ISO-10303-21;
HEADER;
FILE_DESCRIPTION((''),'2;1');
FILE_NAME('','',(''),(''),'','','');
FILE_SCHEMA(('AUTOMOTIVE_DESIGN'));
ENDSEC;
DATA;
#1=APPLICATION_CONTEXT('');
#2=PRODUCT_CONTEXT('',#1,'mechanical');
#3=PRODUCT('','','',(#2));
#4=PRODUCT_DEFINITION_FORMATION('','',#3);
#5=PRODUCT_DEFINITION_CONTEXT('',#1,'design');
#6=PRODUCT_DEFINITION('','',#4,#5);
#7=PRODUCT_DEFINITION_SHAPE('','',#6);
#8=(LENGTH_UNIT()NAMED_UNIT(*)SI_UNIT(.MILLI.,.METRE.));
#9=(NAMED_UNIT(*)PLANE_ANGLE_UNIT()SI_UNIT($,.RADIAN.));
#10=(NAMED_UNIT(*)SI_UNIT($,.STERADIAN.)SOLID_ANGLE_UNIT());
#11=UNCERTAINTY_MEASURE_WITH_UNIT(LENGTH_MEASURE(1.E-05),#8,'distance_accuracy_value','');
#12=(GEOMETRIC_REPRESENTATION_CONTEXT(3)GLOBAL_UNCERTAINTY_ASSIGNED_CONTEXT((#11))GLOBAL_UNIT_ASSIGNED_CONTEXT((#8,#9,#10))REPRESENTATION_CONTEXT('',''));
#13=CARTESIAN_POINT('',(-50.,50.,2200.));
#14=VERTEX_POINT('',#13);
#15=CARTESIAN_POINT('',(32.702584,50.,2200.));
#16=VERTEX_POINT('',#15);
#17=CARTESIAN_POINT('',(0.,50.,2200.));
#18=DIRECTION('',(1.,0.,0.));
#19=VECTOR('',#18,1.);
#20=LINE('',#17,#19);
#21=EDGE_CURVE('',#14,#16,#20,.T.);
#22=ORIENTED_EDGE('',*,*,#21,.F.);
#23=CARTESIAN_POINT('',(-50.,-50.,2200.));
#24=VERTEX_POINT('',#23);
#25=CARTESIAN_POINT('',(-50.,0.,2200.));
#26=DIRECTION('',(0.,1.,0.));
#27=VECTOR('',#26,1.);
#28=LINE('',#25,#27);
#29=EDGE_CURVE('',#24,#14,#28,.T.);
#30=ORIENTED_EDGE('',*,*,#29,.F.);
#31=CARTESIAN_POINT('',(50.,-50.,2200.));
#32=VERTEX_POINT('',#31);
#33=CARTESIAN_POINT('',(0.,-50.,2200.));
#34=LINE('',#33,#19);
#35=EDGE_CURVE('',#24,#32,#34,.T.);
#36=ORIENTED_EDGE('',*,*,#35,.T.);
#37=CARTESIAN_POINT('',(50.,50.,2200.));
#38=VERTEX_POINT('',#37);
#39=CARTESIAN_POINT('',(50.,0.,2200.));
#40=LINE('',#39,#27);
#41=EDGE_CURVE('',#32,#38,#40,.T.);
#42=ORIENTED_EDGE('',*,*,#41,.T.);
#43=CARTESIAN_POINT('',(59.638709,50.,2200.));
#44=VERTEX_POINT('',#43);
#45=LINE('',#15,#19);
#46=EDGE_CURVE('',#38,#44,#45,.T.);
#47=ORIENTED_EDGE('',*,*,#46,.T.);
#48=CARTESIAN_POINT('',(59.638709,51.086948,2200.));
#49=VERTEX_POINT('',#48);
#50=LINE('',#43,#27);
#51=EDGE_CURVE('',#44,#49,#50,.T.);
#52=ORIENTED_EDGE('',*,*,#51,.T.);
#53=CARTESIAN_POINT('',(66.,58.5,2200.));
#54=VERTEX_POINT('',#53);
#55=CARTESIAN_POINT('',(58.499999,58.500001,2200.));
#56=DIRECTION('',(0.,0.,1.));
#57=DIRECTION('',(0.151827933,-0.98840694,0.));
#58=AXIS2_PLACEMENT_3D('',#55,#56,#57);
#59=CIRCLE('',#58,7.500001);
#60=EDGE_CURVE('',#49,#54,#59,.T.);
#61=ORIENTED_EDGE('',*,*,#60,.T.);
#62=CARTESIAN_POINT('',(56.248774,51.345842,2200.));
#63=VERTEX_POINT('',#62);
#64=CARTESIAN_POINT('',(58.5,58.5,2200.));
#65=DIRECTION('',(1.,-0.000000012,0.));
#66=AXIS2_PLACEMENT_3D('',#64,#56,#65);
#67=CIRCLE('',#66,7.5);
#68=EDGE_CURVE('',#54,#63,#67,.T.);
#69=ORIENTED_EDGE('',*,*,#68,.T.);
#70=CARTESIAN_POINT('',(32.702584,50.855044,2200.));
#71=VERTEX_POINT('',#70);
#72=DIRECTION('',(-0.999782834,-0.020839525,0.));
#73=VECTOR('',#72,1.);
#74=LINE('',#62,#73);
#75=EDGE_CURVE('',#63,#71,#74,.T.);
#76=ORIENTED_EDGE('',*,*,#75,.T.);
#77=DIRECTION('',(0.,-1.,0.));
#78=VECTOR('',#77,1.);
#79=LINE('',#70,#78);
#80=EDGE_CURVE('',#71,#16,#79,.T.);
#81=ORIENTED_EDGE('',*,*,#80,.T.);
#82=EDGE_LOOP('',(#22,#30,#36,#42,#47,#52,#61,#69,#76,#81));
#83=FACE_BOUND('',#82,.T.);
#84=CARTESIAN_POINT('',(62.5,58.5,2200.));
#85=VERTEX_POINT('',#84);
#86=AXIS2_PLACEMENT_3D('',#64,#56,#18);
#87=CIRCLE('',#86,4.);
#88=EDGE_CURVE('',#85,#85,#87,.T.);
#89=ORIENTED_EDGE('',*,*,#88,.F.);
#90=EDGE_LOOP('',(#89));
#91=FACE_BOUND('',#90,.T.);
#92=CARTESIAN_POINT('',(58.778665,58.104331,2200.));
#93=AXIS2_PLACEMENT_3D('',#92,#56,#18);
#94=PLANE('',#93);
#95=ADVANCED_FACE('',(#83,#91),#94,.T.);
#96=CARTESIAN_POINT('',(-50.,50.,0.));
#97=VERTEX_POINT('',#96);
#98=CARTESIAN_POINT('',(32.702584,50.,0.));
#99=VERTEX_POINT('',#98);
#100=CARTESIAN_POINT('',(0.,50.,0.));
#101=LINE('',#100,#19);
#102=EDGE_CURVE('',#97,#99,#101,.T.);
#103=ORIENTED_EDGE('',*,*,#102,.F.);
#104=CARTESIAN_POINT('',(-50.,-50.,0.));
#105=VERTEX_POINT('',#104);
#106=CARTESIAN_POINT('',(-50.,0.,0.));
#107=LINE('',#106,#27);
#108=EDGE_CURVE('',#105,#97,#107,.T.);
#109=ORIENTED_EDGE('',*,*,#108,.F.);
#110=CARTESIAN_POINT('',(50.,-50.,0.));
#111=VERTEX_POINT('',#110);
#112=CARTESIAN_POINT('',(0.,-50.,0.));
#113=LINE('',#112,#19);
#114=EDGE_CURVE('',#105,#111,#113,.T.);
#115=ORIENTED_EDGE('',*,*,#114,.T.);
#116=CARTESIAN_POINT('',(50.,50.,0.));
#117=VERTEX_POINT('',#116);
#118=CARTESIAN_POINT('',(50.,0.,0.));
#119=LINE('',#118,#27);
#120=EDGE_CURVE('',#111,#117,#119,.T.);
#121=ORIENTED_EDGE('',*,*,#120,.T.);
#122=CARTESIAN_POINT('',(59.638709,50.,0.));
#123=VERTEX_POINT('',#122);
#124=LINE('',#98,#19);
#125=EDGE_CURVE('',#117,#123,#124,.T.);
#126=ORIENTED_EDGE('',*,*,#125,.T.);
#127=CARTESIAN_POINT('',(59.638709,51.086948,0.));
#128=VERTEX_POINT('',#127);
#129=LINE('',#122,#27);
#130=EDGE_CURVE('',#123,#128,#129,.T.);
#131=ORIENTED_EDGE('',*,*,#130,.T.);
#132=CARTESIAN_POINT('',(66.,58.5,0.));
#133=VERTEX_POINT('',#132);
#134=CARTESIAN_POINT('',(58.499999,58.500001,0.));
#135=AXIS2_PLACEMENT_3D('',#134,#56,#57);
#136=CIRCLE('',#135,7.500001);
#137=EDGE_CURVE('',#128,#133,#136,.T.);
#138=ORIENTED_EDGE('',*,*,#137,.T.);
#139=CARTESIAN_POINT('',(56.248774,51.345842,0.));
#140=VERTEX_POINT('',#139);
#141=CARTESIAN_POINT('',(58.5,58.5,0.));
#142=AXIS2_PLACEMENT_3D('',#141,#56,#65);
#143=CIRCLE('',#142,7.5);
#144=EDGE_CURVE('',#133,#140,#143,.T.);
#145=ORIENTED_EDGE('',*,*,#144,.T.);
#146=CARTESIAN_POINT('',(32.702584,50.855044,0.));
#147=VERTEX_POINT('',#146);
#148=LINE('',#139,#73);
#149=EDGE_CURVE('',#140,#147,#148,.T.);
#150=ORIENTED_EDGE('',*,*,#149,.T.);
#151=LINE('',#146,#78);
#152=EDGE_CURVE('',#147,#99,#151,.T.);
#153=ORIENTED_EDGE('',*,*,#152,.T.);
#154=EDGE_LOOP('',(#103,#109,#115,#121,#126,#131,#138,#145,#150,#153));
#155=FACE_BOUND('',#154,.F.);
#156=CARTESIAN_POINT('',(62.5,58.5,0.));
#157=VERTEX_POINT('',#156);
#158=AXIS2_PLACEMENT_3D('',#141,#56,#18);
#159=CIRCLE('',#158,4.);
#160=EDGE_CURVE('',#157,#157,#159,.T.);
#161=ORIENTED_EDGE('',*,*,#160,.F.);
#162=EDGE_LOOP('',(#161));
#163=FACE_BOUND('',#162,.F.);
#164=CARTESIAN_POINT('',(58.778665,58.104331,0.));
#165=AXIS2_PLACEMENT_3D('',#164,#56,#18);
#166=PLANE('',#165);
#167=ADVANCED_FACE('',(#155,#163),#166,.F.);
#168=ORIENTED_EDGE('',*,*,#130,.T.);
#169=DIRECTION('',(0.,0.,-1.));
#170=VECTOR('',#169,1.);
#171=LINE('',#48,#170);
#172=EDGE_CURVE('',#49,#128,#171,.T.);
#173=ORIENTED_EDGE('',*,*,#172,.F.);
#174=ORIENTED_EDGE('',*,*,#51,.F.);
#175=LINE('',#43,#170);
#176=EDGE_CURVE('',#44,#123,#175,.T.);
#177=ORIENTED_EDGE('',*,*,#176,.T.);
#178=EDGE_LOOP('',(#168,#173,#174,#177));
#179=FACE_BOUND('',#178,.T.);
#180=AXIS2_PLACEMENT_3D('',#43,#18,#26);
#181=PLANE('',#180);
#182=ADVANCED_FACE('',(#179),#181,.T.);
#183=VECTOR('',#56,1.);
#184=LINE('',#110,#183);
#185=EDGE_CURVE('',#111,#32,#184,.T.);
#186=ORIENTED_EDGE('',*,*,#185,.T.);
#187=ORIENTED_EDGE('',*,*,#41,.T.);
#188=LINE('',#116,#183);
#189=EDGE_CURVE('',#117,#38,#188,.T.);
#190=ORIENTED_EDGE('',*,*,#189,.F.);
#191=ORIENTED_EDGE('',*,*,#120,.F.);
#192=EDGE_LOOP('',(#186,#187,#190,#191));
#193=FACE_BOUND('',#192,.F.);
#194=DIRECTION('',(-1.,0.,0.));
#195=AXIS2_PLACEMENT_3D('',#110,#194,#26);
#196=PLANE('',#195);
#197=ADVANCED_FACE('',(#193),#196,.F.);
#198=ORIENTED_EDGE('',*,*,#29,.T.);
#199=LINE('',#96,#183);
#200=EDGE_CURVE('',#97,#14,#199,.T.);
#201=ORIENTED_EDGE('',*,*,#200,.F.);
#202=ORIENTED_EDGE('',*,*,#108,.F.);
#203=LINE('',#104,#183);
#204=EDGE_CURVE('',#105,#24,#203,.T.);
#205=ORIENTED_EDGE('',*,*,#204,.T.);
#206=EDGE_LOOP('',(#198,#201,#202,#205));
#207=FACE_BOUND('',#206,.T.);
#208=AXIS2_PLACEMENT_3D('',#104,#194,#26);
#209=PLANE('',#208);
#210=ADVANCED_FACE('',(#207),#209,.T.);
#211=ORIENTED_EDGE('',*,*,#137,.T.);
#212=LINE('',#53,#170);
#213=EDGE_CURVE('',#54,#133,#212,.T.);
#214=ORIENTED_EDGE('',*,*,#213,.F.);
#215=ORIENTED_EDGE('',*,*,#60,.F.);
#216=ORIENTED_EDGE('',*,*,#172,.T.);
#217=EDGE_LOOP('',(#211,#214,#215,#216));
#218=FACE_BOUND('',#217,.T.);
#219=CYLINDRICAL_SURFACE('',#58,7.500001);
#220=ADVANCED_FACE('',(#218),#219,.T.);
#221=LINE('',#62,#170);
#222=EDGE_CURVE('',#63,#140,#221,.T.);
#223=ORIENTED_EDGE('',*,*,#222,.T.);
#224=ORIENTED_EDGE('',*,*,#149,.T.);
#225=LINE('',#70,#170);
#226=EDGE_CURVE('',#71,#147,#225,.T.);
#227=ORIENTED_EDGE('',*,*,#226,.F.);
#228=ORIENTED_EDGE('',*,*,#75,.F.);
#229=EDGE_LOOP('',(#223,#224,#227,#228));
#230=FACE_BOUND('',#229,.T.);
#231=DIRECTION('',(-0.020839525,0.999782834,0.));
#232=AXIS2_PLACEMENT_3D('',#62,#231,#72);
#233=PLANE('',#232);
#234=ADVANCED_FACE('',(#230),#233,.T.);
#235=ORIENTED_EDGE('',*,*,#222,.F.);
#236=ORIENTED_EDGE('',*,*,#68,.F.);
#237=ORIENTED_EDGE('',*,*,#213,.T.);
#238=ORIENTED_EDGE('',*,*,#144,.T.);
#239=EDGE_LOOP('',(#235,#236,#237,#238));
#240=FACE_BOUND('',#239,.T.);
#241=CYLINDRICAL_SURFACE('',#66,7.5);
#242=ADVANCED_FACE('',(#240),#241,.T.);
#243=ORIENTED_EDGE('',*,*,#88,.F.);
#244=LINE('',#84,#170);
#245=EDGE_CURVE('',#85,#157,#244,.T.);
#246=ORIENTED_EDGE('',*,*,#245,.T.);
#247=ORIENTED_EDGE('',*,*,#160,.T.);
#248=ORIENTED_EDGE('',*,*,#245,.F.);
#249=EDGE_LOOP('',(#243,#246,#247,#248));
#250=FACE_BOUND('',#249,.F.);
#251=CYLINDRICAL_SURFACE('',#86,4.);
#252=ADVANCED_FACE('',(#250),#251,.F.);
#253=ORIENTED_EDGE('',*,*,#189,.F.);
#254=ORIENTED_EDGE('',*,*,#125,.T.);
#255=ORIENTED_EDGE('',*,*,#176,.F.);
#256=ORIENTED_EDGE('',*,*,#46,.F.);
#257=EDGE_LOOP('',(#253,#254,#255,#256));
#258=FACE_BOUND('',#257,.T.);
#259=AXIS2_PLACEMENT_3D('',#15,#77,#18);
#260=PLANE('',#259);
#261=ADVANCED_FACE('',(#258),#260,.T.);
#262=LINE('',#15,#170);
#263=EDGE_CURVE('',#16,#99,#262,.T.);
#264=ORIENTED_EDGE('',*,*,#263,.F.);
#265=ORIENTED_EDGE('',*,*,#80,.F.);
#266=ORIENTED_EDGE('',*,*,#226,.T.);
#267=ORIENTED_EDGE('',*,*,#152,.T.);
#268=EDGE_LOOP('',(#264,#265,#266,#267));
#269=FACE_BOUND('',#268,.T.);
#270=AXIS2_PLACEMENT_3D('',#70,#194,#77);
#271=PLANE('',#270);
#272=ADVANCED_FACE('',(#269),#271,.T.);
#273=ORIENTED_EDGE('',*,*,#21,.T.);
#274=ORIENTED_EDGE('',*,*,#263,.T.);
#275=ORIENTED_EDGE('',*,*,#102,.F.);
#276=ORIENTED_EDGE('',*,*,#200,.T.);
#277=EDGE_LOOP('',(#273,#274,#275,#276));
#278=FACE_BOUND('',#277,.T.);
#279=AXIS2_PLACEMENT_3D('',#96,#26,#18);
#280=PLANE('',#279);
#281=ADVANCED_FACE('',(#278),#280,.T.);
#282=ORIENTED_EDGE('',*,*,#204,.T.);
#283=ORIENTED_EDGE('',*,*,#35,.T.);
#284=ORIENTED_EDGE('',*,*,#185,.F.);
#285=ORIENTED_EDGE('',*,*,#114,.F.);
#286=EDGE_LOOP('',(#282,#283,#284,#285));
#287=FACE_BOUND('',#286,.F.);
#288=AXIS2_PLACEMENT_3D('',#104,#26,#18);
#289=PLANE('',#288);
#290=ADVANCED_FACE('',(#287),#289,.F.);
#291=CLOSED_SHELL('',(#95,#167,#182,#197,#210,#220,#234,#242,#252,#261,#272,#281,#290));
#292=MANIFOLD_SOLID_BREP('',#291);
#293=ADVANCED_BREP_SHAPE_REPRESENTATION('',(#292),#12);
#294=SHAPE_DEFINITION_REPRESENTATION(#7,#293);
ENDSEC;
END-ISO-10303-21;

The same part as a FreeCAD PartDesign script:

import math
import FreeCAD as App
import Part
import Sketcher
Q = App.Units.Quantity

doc = App.newDocument("Part")
body = doc.addObject("PartDesign::Body", "Body")

# Sketch on XY plane
sketch1 = doc.addObject("Sketcher::SketchObject", "Sketch")
body.addObject(sketch1)
sketch1.AttachmentSupport = (doc.XY_Plane, [""])
sketch1.MapMode = "FlatFace"
sketch1.addGeometry(Part.LineSegment(App.Vector(-50, 50, 0), App.Vector(-50, -50, 0)), False)
sketch1.addGeometry(Part.LineSegment(App.Vector(-50, -50, 0), App.Vector(50, -50, 0)), False)
sketch1.addGeometry(Part.LineSegment(App.Vector(50, -50, 0), App.Vector(50, 50, 0)), False)
sketch1.addGeometry(Part.LineSegment(App.Vector(50, 50, 0), App.Vector(-50, 50, 0)), False)
sketch1.addConstraint(Sketcher.Constraint("Coincident", 0, 2, 1, 1))
sketch1.addConstraint(Sketcher.Constraint("Coincident", 1, 2, 2, 1))
sketch1.addConstraint(Sketcher.Constraint("Coincident", 2, 2, 3, 1))
sketch1.addConstraint(Sketcher.Constraint("Coincident", 3, 2, 0, 1))
sketch1.addConstraint(Sketcher.Constraint("Vertical", 0))
sketch1.addConstraint(Sketcher.Constraint("Horizontal", 1))
sketch1.addConstraint(Sketcher.Constraint("Vertical", 2))
sketch1.addConstraint(Sketcher.Constraint("Horizontal", 3))
sketch1.addConstraint(Sketcher.Constraint("Symmetric", 0, 2, 2, 2, -1, 1))
sketch1.addConstraint(Sketcher.Constraint("Equal", 3, 0))
sketch1.addConstraint(Sketcher.Constraint("DistanceX", 1, 1, 1, 2, Q("100 mm")))
pad1 = doc.addObject("PartDesign::Pad", "Pad")
body.addObject(pad1)
pad1.Profile = sketch1
pad1.Length = 2200

# Sketch on XY plane
sketch2 = doc.addObject("Sketcher::SketchObject", "Sketch001")
body.addObject(sketch2)
sketch2.AttachmentSupport = (doc.XY_Plane, [""])
sketch2.MapMode = "FlatFace"
sketch2.AttachmentOffset = App.Placement(App.Vector(0, 0, 2200), App.Rotation())
sketch2.addGeometry(Part.ArcOfCircle(Part.Circle(App.Vector(58.5, 58.5, 0), App.Vector(0, 0, 1), 7.5), math.radians(-81), math.radians(0)), False)
sketch2.addGeometry(Part.ArcOfCircle(Part.Circle(App.Vector(58.5, 58.5, 0), App.Vector(0, 0, 1), 7.5), math.radians(0), math.radians(253)), False)
sketch2.addGeometry(Part.LineSegment(App.Vector(56.2, 51.3, 0), App.Vector(32.7, 50.9, 0)), False)
sketch2.addGeometry(Part.LineSegment(App.Vector(32.7, 50.9, 0), App.Vector(32.7, 50, 0)), False)
sketch2.addGeometry(Part.LineSegment(App.Vector(32.7, 50, 0), App.Vector(59.6, 50, 0)), False)
sketch2.addGeometry(Part.LineSegment(App.Vector(59.6, 50, 0), App.Vector(59.6, 51.1, 0)), False)
sketch2.addGeometry(Part.Circle(App.Vector(58.5, 58.5, 0), App.Vector(0, 0, 1), 4), False)
sketch2.addConstraint(Sketcher.Constraint("Tangent", 0, 2, 1, 1))
sketch2.addConstraint(Sketcher.Constraint("Coincident", 1, 2, 2, 1))
sketch2.addConstraint(Sketcher.Constraint("Coincident", 2, 2, 3, 1))
sketch2.addConstraint(Sketcher.Constraint("Coincident", 3, 2, 4, 1))
sketch2.addConstraint(Sketcher.Constraint("Coincident", 4, 2, 5, 1))
sketch2.addConstraint(Sketcher.Constraint("Coincident", 5, 2, 0, 1))
sketch2.addConstraint(Sketcher.Constraint("Vertical", 3))
sketch2.addConstraint(Sketcher.Constraint("Horizontal", 4))
sketch2.addConstraint(Sketcher.Constraint("Vertical", 5))
sketch2.addConstraint(Sketcher.Constraint("Coincident", 6, 3, 0, 3))
sketch2.addConstraint(Sketcher.Constraint("Equal", 0, 1))
sketch2.addConstraint(Sketcher.Constraint("Horizontal", 6, 3, 0, 2))
sketch2.addConstraint(Sketcher.Constraint("Diameter", 6, Q("8 mm")))
sketch2.addConstraint(Sketcher.Constraint("Radius", 0, Q("7.500001 mm")))
sketch2.addConstraint(Sketcher.Constraint("DistanceX", -1, 1, 0, 2, Q("66 mm")))
sketch2.addConstraint(Sketcher.Constraint("DistanceY", -1, 1, 3, 2, Q("50 mm")))
sketch2.addConstraint(Sketcher.Constraint("DistanceY", -1, 1, 0, 3, Q("58.500001 mm")))
sketch2.addConstraint(Sketcher.Constraint("DistanceX", 4, 1, 4, 2, Q("26.936125 mm")))
sketch2.addConstraint(Sketcher.Constraint("DistanceY", 3, 2, 3, 1, Q("0.855044 mm")))
sketch2.addConstraint(Sketcher.Constraint("DistanceY", 5, 1, 5, 2, Q("1.086948 mm")))
sketch2.addConstraint(Sketcher.Constraint("DistanceY", -1, 1, 1, 2, Q("51.345842 mm")))
pad2 = doc.addObject("PartDesign::Pad", "Pad001")
body.addObject(pad2)
pad2.Profile = sketch2
pad2.Length = 2200
pad2.Reversed = True

doc.recompute()
